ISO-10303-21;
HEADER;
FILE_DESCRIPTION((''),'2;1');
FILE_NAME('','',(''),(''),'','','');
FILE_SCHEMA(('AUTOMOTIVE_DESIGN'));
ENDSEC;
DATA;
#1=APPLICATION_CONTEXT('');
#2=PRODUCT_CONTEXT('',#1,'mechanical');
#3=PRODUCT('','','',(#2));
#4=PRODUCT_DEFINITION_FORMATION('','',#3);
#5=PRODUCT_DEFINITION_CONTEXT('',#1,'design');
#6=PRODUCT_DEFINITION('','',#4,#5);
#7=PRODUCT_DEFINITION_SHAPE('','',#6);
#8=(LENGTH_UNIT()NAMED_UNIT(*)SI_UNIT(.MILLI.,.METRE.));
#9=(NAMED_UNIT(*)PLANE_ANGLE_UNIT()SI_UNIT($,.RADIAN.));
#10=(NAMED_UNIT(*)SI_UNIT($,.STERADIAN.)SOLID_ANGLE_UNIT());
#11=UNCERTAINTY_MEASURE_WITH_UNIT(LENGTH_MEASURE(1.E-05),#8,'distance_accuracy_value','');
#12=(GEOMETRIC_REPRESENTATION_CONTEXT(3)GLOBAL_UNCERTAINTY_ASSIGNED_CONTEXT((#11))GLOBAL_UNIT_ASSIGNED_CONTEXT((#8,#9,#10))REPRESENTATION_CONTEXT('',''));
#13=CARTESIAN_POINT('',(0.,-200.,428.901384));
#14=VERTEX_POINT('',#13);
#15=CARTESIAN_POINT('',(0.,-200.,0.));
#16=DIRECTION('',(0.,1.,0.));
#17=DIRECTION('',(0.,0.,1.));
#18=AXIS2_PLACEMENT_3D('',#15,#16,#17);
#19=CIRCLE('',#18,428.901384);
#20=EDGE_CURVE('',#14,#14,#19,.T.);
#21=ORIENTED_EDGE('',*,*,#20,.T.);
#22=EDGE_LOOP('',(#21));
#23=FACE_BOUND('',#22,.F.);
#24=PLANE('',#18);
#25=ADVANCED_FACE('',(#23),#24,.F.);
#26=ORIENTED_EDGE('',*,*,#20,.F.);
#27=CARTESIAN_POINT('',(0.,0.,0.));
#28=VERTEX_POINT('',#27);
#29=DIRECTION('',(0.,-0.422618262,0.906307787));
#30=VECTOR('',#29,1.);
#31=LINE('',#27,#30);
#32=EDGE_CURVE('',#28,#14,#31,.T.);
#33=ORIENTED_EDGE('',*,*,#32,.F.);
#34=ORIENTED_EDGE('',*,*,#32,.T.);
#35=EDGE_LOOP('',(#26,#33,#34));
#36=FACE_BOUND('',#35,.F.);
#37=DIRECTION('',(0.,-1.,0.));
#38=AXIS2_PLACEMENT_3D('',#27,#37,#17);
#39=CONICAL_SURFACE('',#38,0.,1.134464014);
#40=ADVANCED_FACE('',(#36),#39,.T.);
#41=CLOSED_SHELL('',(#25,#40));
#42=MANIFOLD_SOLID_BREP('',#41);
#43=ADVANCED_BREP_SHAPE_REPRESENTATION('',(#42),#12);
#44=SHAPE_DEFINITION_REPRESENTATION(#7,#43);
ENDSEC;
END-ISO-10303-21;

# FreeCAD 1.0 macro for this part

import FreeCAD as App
import Part
import Sketcher
Q = App.Units.Quantity

doc = App.newDocument("Part")
params = doc.addObject("Spreadsheet::Sheet", "Params")
for row, (alias, value) in enumerate([
    ("sketch1_width", "200 mm"),
    ("revolution_angle", "360 deg"),
], start=1):
    params.set(f"A{row}", alias)
    params.set(f"B{row}", "=" + value)
    params.setAlias(f"B{row}", alias)

body = doc.addObject("PartDesign::Body", "Body")

sketch1 = doc.addObject("Sketcher::SketchObject", "Sketch")
body.addObject(sketch1)
sketch1.AttachmentSupport = (doc.YZ_Plane, [""])
sketch1.MapMode = "FlatFace"
sketch1.addGeometry([
    Part.LineSegment(App.Vector(-200, 0, 0), App.Vector(0, 0, 0)),
    Part.LineSegment(App.Vector(0, 0, 0), App.Vector(-200, 429, 0)),
    Part.LineSegment(App.Vector(-200, 429, 0), App.Vector(-200, 0, 0)),
], False)
sketch1.addConstraint([
    Sketcher.Constraint("Coincident", 0, 2, 1, 1),
    Sketcher.Constraint("Coincident", 1, 2, 2, 1),
    Sketcher.Constraint("Coincident", 2, 2, 0, 1),
    Sketcher.Constraint("Horizontal", 0),
    Sketcher.Constraint("Vertical", 2),
    Sketcher.Constraint("Coincident", 0, 2, -1, 1),
    Sketcher.Constraint("DistanceX", 0, 1, 0, 2, Q("200 mm")),
    Sketcher.Constraint("Angle", 1, Q("115 deg")),
])
sketch1.setExpression("Constraints[6]", "Params.sketch1_width")
revolution = doc.addObject("PartDesign::Revolution", "Revolution")
body.addObject(revolution)
revolution.Profile = sketch1
revolution.ReferenceAxis = (sketch1, ["H_Axis"])
revolution.setExpression("Angle", "Params.revolution_angle")

doc.recompute()
